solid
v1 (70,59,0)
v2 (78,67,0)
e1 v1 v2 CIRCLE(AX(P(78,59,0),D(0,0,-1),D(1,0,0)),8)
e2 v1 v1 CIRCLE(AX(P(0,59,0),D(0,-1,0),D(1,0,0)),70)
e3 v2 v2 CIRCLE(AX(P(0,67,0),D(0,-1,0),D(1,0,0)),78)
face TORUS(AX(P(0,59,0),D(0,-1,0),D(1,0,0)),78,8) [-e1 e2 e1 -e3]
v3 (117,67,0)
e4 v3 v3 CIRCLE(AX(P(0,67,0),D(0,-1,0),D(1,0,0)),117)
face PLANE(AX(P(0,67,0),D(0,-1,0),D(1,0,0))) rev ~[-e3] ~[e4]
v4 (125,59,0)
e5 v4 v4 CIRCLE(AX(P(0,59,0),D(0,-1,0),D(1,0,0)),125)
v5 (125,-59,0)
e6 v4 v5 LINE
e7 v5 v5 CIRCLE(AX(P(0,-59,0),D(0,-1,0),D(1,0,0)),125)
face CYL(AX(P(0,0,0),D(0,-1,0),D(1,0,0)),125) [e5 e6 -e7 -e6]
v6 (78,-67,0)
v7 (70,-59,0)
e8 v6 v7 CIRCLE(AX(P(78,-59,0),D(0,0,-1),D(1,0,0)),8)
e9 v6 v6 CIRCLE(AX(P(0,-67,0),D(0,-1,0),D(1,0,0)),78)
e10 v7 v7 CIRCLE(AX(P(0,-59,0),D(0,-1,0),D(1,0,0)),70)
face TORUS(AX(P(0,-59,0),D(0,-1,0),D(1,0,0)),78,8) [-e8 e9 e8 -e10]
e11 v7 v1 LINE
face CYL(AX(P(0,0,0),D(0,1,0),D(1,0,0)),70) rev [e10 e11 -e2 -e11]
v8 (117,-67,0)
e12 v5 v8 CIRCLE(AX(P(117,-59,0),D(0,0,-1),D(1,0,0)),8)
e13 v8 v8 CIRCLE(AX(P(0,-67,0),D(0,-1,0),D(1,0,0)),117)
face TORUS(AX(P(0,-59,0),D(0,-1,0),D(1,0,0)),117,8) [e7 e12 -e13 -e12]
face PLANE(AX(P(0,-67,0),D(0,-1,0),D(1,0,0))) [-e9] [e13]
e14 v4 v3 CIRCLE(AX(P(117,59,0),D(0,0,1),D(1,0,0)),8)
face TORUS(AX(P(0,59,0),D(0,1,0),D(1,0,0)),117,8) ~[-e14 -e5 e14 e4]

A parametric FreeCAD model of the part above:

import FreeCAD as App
import Part
import Sketcher
Q = App.Units.Quantity


def edges_at(feature, points):
    """Names of the edges that pass closest to the given points."""
    edges = feature.Shape.Edges
    near = lambda p: min(range(len(edges)), key=lambda i: edges[i].distToShape(Part.Vertex(*p))[0])
    return sorted({f"Edge{near(p) + 1}" for p in points})

doc = App.newDocument("Part")
params = doc.addObject("Spreadsheet::Sheet", "Params")
for row, (alias, value) in enumerate([
    ("sketch1_diameter", "250 mm"),
    ("sketch1_diameter2", "140 mm"),
    ("pad1_length", "134 mm"),
    ("fillet_radius", "8 mm"),
], start=1):
    params.set(f"A{row}", alias)
    params.set(f"B{row}", "=" + value)
    params.setAlias(f"B{row}", alias)

body = doc.addObject("PartDesign::Body", "Body")

sketch1 = doc.addObject("Sketcher::SketchObject", "Sketch")
body.addObject(sketch1)
sketch1.AttachmentSupport = (doc.XZ_Plane, [""])
sketch1.MapMode = "FlatFace"
sketch1.addGeometry(Part.Circle(App.Vector(0, 0, 0), App.Vector(0, 0, 1), 125), False)
sketch1.addGeometry(Part.Circle(App.Vector(0, 0, 0), App.Vector(0, 0, 1), 70), False)
sketch1.addConstraint(Sketcher.Constraint("Coincident", 0, 3, -1, 1))
sketch1.addConstraint(Sketcher.Constraint("Coincident", 1, 3, -1, 1))
sketch1.addConstraint(Sketcher.Constraint("Diameter", 0, Q("250 mm")))
sketch1.addConstraint(Sketcher.Constraint("Diameter", 1, Q("140 mm")))
sketch1.setExpression("Constraints[2]", "Params.sketch1_diameter")
sketch1.setExpression("Constraints[3]", "Params.sketch1_diameter2")
pad1 = doc.addObject("PartDesign::Pad", "Pad")
body.addObject(pad1)
pad1.Profile = sketch1
pad1.setExpression("Length", "Params.pad1_length")
pad1.Midplane = True
doc.recompute()

fillet = doc.addObject("PartDesign::Fillet", "Fillet")
body.addObject(fillet)
fillet.Base = (pad1, edges_at(pad1, [
    (-125, -67, 0),
    (-125, 67, 0),
    (-70, 67, 0),
    (-70, -67, 0),
]))
fillet.setExpression("Radius", "Params.fillet_radius")

doc.recompute()
